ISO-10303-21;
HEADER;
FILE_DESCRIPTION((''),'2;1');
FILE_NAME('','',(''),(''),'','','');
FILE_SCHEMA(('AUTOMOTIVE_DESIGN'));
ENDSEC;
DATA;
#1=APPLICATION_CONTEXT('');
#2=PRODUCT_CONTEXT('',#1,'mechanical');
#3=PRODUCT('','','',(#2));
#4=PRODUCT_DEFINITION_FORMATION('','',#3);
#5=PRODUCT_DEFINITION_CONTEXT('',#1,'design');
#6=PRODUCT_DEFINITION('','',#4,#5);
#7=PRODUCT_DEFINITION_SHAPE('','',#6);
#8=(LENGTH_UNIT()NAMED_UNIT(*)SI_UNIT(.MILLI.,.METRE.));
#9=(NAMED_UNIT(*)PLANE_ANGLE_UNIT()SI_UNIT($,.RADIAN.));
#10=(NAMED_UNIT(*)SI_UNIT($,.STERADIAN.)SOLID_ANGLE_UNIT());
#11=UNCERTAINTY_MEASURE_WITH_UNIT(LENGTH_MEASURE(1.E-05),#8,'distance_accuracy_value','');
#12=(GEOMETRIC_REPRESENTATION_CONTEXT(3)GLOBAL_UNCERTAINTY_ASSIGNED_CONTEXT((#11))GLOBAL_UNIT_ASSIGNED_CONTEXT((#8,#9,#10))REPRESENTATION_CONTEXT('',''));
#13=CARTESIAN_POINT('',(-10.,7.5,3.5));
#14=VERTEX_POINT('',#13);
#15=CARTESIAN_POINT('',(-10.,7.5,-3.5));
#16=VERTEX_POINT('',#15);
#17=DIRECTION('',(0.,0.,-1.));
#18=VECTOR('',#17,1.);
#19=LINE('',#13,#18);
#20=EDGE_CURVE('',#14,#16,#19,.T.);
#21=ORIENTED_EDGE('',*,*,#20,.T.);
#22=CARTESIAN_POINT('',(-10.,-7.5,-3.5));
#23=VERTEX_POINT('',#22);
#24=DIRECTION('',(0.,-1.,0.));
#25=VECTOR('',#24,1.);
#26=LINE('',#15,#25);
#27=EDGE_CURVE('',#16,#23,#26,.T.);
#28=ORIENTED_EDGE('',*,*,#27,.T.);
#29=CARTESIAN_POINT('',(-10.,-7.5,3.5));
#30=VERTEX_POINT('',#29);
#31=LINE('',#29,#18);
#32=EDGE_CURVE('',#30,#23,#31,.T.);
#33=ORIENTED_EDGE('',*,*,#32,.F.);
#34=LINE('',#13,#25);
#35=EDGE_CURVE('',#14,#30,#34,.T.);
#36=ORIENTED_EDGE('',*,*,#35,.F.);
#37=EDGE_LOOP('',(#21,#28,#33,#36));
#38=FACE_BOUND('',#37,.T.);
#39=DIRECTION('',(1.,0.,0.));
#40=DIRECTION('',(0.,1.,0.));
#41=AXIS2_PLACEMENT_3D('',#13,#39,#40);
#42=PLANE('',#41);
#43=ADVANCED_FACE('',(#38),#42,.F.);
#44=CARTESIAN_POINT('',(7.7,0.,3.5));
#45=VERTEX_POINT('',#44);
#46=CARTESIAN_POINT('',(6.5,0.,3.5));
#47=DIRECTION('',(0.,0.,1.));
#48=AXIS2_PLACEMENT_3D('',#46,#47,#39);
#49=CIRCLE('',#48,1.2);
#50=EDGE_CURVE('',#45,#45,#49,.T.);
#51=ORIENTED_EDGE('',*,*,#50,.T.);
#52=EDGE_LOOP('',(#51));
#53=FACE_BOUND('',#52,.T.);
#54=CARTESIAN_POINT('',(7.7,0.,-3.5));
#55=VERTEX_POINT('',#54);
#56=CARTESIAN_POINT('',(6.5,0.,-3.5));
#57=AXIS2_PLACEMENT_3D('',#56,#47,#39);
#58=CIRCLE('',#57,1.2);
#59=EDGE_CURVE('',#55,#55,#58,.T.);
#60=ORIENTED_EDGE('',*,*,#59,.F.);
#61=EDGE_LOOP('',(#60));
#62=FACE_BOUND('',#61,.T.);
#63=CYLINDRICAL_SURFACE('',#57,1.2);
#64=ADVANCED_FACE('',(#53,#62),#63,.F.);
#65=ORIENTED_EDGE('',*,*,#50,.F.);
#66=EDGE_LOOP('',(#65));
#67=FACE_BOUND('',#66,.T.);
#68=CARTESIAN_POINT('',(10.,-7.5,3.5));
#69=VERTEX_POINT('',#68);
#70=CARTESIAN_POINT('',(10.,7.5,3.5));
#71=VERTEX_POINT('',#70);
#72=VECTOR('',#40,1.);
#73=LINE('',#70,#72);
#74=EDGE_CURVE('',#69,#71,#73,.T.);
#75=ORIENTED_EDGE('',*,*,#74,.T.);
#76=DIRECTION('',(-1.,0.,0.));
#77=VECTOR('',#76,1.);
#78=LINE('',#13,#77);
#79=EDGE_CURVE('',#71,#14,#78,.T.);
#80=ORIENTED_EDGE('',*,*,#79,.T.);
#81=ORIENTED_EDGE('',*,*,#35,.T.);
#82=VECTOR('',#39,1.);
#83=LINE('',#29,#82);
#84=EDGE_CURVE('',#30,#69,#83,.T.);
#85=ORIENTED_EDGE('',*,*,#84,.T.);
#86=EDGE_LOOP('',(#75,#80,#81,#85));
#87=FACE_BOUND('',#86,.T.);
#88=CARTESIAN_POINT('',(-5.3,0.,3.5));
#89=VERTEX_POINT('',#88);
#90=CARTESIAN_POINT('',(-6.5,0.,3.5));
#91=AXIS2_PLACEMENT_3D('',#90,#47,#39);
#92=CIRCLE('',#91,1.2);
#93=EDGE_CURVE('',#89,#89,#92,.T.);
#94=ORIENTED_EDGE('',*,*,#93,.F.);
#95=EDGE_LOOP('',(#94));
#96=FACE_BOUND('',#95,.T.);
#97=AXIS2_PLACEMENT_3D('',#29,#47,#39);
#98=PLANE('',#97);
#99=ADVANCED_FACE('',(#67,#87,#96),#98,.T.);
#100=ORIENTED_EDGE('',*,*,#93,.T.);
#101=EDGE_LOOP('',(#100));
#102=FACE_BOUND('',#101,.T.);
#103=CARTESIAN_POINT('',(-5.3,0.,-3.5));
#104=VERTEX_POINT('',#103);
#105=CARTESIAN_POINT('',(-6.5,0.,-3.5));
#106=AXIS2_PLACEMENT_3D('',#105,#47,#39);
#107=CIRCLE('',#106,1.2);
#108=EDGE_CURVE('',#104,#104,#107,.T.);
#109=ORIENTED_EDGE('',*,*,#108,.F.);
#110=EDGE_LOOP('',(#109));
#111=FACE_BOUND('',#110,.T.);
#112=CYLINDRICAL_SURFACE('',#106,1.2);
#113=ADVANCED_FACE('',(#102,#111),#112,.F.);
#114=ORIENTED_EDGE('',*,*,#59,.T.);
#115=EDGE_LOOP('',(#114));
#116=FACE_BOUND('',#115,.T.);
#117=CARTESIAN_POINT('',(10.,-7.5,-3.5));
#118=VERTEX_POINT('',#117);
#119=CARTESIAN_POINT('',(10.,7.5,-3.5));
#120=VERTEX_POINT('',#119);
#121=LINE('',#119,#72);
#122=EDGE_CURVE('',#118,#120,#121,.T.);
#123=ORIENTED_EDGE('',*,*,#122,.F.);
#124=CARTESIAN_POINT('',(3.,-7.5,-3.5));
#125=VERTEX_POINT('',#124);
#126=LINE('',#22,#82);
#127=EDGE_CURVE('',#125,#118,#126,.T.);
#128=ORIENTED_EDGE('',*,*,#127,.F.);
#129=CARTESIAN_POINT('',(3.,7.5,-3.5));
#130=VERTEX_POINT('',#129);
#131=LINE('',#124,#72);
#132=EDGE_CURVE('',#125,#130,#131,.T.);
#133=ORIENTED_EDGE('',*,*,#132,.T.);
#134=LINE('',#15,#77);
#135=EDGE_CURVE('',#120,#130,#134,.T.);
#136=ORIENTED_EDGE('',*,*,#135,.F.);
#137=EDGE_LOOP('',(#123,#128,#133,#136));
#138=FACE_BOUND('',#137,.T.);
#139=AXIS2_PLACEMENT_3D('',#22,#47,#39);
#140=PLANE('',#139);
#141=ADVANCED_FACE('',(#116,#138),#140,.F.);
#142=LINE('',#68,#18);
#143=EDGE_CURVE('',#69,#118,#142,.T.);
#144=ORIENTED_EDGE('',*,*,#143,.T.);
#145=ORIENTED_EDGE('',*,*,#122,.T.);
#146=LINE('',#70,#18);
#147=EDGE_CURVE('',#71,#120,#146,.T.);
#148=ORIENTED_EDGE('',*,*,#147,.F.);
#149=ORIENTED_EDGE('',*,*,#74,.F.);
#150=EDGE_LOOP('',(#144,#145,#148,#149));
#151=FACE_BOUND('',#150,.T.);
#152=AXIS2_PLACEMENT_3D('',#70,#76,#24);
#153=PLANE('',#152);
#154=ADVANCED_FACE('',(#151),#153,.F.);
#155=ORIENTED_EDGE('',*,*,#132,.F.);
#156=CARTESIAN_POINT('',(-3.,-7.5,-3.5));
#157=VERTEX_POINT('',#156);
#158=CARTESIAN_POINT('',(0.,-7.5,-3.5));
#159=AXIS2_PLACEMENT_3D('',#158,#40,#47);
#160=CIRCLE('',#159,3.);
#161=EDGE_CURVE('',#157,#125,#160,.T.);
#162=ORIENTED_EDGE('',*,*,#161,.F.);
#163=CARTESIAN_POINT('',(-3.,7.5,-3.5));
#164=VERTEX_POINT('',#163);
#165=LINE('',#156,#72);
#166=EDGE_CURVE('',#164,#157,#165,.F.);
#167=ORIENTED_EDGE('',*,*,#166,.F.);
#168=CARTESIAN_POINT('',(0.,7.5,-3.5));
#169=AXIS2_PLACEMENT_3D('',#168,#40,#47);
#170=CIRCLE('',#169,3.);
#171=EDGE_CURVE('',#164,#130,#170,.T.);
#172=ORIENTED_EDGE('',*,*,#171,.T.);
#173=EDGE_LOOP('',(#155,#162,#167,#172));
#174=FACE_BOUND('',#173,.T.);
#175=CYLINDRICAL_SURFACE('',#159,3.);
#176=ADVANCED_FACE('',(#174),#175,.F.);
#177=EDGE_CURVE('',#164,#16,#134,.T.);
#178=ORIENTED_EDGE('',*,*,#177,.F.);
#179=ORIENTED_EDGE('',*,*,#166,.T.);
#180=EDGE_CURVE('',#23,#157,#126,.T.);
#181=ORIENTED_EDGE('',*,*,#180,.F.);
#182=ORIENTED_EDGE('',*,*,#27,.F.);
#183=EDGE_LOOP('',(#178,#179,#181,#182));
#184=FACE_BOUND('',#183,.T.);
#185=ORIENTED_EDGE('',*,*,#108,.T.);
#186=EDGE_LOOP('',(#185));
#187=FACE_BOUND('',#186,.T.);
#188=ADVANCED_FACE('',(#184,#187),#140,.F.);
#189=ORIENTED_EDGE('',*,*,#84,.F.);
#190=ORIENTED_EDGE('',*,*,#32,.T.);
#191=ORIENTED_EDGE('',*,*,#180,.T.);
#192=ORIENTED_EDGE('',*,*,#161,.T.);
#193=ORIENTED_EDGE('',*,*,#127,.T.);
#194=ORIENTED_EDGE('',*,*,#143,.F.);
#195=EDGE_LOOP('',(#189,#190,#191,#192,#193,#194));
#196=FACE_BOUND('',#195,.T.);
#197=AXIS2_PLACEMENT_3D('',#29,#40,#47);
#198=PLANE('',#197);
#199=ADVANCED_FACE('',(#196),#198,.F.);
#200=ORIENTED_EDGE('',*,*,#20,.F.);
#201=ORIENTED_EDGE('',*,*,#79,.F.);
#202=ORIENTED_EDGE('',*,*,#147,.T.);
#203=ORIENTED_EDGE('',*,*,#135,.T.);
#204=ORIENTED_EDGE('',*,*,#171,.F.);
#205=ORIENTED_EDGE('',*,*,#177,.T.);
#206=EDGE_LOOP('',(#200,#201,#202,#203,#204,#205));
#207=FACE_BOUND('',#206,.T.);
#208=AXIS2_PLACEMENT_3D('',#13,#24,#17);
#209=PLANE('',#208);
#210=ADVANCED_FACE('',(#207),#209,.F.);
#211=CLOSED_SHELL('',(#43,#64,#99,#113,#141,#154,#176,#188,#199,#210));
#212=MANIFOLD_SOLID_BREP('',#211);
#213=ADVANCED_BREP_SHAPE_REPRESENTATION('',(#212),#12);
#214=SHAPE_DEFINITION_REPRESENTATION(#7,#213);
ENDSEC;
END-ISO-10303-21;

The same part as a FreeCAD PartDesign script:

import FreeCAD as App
import Part
import Sketcher

V = App.Vector
Q = App.Units.Quantity

doc = App.newDocument("Part")
body = doc.addObject("PartDesign::Body", "Body")

# Sketch on XY plane
sketch1 = body.newObject("Sketcher::SketchObject", "Sketch")
sketch1.AttachmentSupport = (doc.getObject("XY_Plane"), [""])
sketch1.MapMode = "FlatFace"
sketch1.addGeometry(Part.LineSegment(V(-10, 8, 0), V(-10, -8, 0)), False)
sketch1.addGeometry(Part.LineSegment(V(-10, -8, 0), V(10, -8, 0)), False)
sketch1.addGeometry(Part.LineSegment(V(10, -8, 0), V(10, 8, 0)), False)
sketch1.addGeometry(Part.LineSegment(V(10, 8, 0), V(-10, 8, 0)), False)
sketch1.addConstraint(Sketcher.Constraint("Coincident", 0, 2, 1, 1))
sketch1.addConstraint(Sketcher.Constraint("Coincident", 1, 2, 2, 1))
sketch1.addConstraint(Sketcher.Constraint("Coincident", 2, 2, 3, 1))
sketch1.addConstraint(Sketcher.Constraint("Coincident", 3, 2, 0, 1))
sketch1.addConstraint(Sketcher.Constraint("Vertical", 0))
sketch1.addConstraint(Sketcher.Constraint("Horizontal", 1))
sketch1.addConstraint(Sketcher.Constraint("Vertical", 2))
sketch1.addConstraint(Sketcher.Constraint("Horizontal", 3))
sketch1.addConstraint(Sketcher.Constraint("Symmetric", 0, 2, 2, 2, -1, 1))
sketch1.addConstraint(Sketcher.Constraint("DistanceX", 1, 1, 1, 2, Q("20 mm")))
sketch1.addConstraint(Sketcher.Constraint("DistanceY", 0, 2, 0, 1, Q("15 mm")))
pad1 = body.newObject("PartDesign::Pad", "Pad")
pad1.Profile = sketch1
pad1.Length = 7
pad1.Midplane = True

# Sketch on XZ plane
sketch2 = body.newObject("Sketcher::SketchObject", "Sketch001")
sketch2.AttachmentSupport = (doc.getObject("XZ_Plane"), [""])
sketch2.MapMode = "FlatFace"
sketch2.AttachmentOffset = App.Placement(V(0, 0, -7.5), App.Rotation())
sketch2.addGeometry(Part.Circle(V(0, -3.5, 0), V(0, 0, 1), 3), False)
sketch2.addConstraint(Sketcher.Constraint("PointOnObject", 0, 3, -2))
sketch2.addConstraint(Sketcher.Constraint("Diameter", 0, Q("6 mm")))
sketch2.addConstraint(Sketcher.Constraint("DistanceY", 0, 3, -1, 1, Q("3.5 mm")))
pocket1 = body.newObject("PartDesign::Pocket", "Pocket")
pocket1.Profile = sketch2
pocket1.Type = "ThroughAll"
pocket1.Reversed = True

# Sketch on XY plane
sketch3 = body.newObject("Sketcher::SketchObject", "Sketch002")
sketch3.AttachmentSupport = (doc.getObject("XY_Plane"), [""])
sketch3.MapMode = "FlatFace"
sketch3.AttachmentOffset = App.Placement(V(0, 0, 3.5), App.Rotation())
sketch3.addGeometry(Part.Circle(V(-6.5, 0, 0), V(0, 0, 1), 1.2), False)
sketch3.addGeometry(Part.Circle(V(6.5, 0, 0), V(0, 0, 1), 1.2), False)
sketch3.addConstraint(Sketcher.Constraint("Equal", 0, 1))
sketch3.addConstraint(Sketcher.Constraint("Symmetric", 0, 3, 1, 3, -1, 1))
sketch3.addConstraint(Sketcher.Constraint("PointOnObject", 0, 3, -1))
sketch3.addConstraint(Sketcher.Constraint("Diameter", 0, Q("2.4 mm")))
sketch3.addConstraint(Sketcher.Constraint("DistanceX", 0, 3, 1, 3, Q("13 mm")))
pocket2 = body.newObject("PartDesign::Pocket", "Pocket001")
pocket2.Profile = sketch3
pocket2.Type = "ThroughAll"

doc.recompute()
